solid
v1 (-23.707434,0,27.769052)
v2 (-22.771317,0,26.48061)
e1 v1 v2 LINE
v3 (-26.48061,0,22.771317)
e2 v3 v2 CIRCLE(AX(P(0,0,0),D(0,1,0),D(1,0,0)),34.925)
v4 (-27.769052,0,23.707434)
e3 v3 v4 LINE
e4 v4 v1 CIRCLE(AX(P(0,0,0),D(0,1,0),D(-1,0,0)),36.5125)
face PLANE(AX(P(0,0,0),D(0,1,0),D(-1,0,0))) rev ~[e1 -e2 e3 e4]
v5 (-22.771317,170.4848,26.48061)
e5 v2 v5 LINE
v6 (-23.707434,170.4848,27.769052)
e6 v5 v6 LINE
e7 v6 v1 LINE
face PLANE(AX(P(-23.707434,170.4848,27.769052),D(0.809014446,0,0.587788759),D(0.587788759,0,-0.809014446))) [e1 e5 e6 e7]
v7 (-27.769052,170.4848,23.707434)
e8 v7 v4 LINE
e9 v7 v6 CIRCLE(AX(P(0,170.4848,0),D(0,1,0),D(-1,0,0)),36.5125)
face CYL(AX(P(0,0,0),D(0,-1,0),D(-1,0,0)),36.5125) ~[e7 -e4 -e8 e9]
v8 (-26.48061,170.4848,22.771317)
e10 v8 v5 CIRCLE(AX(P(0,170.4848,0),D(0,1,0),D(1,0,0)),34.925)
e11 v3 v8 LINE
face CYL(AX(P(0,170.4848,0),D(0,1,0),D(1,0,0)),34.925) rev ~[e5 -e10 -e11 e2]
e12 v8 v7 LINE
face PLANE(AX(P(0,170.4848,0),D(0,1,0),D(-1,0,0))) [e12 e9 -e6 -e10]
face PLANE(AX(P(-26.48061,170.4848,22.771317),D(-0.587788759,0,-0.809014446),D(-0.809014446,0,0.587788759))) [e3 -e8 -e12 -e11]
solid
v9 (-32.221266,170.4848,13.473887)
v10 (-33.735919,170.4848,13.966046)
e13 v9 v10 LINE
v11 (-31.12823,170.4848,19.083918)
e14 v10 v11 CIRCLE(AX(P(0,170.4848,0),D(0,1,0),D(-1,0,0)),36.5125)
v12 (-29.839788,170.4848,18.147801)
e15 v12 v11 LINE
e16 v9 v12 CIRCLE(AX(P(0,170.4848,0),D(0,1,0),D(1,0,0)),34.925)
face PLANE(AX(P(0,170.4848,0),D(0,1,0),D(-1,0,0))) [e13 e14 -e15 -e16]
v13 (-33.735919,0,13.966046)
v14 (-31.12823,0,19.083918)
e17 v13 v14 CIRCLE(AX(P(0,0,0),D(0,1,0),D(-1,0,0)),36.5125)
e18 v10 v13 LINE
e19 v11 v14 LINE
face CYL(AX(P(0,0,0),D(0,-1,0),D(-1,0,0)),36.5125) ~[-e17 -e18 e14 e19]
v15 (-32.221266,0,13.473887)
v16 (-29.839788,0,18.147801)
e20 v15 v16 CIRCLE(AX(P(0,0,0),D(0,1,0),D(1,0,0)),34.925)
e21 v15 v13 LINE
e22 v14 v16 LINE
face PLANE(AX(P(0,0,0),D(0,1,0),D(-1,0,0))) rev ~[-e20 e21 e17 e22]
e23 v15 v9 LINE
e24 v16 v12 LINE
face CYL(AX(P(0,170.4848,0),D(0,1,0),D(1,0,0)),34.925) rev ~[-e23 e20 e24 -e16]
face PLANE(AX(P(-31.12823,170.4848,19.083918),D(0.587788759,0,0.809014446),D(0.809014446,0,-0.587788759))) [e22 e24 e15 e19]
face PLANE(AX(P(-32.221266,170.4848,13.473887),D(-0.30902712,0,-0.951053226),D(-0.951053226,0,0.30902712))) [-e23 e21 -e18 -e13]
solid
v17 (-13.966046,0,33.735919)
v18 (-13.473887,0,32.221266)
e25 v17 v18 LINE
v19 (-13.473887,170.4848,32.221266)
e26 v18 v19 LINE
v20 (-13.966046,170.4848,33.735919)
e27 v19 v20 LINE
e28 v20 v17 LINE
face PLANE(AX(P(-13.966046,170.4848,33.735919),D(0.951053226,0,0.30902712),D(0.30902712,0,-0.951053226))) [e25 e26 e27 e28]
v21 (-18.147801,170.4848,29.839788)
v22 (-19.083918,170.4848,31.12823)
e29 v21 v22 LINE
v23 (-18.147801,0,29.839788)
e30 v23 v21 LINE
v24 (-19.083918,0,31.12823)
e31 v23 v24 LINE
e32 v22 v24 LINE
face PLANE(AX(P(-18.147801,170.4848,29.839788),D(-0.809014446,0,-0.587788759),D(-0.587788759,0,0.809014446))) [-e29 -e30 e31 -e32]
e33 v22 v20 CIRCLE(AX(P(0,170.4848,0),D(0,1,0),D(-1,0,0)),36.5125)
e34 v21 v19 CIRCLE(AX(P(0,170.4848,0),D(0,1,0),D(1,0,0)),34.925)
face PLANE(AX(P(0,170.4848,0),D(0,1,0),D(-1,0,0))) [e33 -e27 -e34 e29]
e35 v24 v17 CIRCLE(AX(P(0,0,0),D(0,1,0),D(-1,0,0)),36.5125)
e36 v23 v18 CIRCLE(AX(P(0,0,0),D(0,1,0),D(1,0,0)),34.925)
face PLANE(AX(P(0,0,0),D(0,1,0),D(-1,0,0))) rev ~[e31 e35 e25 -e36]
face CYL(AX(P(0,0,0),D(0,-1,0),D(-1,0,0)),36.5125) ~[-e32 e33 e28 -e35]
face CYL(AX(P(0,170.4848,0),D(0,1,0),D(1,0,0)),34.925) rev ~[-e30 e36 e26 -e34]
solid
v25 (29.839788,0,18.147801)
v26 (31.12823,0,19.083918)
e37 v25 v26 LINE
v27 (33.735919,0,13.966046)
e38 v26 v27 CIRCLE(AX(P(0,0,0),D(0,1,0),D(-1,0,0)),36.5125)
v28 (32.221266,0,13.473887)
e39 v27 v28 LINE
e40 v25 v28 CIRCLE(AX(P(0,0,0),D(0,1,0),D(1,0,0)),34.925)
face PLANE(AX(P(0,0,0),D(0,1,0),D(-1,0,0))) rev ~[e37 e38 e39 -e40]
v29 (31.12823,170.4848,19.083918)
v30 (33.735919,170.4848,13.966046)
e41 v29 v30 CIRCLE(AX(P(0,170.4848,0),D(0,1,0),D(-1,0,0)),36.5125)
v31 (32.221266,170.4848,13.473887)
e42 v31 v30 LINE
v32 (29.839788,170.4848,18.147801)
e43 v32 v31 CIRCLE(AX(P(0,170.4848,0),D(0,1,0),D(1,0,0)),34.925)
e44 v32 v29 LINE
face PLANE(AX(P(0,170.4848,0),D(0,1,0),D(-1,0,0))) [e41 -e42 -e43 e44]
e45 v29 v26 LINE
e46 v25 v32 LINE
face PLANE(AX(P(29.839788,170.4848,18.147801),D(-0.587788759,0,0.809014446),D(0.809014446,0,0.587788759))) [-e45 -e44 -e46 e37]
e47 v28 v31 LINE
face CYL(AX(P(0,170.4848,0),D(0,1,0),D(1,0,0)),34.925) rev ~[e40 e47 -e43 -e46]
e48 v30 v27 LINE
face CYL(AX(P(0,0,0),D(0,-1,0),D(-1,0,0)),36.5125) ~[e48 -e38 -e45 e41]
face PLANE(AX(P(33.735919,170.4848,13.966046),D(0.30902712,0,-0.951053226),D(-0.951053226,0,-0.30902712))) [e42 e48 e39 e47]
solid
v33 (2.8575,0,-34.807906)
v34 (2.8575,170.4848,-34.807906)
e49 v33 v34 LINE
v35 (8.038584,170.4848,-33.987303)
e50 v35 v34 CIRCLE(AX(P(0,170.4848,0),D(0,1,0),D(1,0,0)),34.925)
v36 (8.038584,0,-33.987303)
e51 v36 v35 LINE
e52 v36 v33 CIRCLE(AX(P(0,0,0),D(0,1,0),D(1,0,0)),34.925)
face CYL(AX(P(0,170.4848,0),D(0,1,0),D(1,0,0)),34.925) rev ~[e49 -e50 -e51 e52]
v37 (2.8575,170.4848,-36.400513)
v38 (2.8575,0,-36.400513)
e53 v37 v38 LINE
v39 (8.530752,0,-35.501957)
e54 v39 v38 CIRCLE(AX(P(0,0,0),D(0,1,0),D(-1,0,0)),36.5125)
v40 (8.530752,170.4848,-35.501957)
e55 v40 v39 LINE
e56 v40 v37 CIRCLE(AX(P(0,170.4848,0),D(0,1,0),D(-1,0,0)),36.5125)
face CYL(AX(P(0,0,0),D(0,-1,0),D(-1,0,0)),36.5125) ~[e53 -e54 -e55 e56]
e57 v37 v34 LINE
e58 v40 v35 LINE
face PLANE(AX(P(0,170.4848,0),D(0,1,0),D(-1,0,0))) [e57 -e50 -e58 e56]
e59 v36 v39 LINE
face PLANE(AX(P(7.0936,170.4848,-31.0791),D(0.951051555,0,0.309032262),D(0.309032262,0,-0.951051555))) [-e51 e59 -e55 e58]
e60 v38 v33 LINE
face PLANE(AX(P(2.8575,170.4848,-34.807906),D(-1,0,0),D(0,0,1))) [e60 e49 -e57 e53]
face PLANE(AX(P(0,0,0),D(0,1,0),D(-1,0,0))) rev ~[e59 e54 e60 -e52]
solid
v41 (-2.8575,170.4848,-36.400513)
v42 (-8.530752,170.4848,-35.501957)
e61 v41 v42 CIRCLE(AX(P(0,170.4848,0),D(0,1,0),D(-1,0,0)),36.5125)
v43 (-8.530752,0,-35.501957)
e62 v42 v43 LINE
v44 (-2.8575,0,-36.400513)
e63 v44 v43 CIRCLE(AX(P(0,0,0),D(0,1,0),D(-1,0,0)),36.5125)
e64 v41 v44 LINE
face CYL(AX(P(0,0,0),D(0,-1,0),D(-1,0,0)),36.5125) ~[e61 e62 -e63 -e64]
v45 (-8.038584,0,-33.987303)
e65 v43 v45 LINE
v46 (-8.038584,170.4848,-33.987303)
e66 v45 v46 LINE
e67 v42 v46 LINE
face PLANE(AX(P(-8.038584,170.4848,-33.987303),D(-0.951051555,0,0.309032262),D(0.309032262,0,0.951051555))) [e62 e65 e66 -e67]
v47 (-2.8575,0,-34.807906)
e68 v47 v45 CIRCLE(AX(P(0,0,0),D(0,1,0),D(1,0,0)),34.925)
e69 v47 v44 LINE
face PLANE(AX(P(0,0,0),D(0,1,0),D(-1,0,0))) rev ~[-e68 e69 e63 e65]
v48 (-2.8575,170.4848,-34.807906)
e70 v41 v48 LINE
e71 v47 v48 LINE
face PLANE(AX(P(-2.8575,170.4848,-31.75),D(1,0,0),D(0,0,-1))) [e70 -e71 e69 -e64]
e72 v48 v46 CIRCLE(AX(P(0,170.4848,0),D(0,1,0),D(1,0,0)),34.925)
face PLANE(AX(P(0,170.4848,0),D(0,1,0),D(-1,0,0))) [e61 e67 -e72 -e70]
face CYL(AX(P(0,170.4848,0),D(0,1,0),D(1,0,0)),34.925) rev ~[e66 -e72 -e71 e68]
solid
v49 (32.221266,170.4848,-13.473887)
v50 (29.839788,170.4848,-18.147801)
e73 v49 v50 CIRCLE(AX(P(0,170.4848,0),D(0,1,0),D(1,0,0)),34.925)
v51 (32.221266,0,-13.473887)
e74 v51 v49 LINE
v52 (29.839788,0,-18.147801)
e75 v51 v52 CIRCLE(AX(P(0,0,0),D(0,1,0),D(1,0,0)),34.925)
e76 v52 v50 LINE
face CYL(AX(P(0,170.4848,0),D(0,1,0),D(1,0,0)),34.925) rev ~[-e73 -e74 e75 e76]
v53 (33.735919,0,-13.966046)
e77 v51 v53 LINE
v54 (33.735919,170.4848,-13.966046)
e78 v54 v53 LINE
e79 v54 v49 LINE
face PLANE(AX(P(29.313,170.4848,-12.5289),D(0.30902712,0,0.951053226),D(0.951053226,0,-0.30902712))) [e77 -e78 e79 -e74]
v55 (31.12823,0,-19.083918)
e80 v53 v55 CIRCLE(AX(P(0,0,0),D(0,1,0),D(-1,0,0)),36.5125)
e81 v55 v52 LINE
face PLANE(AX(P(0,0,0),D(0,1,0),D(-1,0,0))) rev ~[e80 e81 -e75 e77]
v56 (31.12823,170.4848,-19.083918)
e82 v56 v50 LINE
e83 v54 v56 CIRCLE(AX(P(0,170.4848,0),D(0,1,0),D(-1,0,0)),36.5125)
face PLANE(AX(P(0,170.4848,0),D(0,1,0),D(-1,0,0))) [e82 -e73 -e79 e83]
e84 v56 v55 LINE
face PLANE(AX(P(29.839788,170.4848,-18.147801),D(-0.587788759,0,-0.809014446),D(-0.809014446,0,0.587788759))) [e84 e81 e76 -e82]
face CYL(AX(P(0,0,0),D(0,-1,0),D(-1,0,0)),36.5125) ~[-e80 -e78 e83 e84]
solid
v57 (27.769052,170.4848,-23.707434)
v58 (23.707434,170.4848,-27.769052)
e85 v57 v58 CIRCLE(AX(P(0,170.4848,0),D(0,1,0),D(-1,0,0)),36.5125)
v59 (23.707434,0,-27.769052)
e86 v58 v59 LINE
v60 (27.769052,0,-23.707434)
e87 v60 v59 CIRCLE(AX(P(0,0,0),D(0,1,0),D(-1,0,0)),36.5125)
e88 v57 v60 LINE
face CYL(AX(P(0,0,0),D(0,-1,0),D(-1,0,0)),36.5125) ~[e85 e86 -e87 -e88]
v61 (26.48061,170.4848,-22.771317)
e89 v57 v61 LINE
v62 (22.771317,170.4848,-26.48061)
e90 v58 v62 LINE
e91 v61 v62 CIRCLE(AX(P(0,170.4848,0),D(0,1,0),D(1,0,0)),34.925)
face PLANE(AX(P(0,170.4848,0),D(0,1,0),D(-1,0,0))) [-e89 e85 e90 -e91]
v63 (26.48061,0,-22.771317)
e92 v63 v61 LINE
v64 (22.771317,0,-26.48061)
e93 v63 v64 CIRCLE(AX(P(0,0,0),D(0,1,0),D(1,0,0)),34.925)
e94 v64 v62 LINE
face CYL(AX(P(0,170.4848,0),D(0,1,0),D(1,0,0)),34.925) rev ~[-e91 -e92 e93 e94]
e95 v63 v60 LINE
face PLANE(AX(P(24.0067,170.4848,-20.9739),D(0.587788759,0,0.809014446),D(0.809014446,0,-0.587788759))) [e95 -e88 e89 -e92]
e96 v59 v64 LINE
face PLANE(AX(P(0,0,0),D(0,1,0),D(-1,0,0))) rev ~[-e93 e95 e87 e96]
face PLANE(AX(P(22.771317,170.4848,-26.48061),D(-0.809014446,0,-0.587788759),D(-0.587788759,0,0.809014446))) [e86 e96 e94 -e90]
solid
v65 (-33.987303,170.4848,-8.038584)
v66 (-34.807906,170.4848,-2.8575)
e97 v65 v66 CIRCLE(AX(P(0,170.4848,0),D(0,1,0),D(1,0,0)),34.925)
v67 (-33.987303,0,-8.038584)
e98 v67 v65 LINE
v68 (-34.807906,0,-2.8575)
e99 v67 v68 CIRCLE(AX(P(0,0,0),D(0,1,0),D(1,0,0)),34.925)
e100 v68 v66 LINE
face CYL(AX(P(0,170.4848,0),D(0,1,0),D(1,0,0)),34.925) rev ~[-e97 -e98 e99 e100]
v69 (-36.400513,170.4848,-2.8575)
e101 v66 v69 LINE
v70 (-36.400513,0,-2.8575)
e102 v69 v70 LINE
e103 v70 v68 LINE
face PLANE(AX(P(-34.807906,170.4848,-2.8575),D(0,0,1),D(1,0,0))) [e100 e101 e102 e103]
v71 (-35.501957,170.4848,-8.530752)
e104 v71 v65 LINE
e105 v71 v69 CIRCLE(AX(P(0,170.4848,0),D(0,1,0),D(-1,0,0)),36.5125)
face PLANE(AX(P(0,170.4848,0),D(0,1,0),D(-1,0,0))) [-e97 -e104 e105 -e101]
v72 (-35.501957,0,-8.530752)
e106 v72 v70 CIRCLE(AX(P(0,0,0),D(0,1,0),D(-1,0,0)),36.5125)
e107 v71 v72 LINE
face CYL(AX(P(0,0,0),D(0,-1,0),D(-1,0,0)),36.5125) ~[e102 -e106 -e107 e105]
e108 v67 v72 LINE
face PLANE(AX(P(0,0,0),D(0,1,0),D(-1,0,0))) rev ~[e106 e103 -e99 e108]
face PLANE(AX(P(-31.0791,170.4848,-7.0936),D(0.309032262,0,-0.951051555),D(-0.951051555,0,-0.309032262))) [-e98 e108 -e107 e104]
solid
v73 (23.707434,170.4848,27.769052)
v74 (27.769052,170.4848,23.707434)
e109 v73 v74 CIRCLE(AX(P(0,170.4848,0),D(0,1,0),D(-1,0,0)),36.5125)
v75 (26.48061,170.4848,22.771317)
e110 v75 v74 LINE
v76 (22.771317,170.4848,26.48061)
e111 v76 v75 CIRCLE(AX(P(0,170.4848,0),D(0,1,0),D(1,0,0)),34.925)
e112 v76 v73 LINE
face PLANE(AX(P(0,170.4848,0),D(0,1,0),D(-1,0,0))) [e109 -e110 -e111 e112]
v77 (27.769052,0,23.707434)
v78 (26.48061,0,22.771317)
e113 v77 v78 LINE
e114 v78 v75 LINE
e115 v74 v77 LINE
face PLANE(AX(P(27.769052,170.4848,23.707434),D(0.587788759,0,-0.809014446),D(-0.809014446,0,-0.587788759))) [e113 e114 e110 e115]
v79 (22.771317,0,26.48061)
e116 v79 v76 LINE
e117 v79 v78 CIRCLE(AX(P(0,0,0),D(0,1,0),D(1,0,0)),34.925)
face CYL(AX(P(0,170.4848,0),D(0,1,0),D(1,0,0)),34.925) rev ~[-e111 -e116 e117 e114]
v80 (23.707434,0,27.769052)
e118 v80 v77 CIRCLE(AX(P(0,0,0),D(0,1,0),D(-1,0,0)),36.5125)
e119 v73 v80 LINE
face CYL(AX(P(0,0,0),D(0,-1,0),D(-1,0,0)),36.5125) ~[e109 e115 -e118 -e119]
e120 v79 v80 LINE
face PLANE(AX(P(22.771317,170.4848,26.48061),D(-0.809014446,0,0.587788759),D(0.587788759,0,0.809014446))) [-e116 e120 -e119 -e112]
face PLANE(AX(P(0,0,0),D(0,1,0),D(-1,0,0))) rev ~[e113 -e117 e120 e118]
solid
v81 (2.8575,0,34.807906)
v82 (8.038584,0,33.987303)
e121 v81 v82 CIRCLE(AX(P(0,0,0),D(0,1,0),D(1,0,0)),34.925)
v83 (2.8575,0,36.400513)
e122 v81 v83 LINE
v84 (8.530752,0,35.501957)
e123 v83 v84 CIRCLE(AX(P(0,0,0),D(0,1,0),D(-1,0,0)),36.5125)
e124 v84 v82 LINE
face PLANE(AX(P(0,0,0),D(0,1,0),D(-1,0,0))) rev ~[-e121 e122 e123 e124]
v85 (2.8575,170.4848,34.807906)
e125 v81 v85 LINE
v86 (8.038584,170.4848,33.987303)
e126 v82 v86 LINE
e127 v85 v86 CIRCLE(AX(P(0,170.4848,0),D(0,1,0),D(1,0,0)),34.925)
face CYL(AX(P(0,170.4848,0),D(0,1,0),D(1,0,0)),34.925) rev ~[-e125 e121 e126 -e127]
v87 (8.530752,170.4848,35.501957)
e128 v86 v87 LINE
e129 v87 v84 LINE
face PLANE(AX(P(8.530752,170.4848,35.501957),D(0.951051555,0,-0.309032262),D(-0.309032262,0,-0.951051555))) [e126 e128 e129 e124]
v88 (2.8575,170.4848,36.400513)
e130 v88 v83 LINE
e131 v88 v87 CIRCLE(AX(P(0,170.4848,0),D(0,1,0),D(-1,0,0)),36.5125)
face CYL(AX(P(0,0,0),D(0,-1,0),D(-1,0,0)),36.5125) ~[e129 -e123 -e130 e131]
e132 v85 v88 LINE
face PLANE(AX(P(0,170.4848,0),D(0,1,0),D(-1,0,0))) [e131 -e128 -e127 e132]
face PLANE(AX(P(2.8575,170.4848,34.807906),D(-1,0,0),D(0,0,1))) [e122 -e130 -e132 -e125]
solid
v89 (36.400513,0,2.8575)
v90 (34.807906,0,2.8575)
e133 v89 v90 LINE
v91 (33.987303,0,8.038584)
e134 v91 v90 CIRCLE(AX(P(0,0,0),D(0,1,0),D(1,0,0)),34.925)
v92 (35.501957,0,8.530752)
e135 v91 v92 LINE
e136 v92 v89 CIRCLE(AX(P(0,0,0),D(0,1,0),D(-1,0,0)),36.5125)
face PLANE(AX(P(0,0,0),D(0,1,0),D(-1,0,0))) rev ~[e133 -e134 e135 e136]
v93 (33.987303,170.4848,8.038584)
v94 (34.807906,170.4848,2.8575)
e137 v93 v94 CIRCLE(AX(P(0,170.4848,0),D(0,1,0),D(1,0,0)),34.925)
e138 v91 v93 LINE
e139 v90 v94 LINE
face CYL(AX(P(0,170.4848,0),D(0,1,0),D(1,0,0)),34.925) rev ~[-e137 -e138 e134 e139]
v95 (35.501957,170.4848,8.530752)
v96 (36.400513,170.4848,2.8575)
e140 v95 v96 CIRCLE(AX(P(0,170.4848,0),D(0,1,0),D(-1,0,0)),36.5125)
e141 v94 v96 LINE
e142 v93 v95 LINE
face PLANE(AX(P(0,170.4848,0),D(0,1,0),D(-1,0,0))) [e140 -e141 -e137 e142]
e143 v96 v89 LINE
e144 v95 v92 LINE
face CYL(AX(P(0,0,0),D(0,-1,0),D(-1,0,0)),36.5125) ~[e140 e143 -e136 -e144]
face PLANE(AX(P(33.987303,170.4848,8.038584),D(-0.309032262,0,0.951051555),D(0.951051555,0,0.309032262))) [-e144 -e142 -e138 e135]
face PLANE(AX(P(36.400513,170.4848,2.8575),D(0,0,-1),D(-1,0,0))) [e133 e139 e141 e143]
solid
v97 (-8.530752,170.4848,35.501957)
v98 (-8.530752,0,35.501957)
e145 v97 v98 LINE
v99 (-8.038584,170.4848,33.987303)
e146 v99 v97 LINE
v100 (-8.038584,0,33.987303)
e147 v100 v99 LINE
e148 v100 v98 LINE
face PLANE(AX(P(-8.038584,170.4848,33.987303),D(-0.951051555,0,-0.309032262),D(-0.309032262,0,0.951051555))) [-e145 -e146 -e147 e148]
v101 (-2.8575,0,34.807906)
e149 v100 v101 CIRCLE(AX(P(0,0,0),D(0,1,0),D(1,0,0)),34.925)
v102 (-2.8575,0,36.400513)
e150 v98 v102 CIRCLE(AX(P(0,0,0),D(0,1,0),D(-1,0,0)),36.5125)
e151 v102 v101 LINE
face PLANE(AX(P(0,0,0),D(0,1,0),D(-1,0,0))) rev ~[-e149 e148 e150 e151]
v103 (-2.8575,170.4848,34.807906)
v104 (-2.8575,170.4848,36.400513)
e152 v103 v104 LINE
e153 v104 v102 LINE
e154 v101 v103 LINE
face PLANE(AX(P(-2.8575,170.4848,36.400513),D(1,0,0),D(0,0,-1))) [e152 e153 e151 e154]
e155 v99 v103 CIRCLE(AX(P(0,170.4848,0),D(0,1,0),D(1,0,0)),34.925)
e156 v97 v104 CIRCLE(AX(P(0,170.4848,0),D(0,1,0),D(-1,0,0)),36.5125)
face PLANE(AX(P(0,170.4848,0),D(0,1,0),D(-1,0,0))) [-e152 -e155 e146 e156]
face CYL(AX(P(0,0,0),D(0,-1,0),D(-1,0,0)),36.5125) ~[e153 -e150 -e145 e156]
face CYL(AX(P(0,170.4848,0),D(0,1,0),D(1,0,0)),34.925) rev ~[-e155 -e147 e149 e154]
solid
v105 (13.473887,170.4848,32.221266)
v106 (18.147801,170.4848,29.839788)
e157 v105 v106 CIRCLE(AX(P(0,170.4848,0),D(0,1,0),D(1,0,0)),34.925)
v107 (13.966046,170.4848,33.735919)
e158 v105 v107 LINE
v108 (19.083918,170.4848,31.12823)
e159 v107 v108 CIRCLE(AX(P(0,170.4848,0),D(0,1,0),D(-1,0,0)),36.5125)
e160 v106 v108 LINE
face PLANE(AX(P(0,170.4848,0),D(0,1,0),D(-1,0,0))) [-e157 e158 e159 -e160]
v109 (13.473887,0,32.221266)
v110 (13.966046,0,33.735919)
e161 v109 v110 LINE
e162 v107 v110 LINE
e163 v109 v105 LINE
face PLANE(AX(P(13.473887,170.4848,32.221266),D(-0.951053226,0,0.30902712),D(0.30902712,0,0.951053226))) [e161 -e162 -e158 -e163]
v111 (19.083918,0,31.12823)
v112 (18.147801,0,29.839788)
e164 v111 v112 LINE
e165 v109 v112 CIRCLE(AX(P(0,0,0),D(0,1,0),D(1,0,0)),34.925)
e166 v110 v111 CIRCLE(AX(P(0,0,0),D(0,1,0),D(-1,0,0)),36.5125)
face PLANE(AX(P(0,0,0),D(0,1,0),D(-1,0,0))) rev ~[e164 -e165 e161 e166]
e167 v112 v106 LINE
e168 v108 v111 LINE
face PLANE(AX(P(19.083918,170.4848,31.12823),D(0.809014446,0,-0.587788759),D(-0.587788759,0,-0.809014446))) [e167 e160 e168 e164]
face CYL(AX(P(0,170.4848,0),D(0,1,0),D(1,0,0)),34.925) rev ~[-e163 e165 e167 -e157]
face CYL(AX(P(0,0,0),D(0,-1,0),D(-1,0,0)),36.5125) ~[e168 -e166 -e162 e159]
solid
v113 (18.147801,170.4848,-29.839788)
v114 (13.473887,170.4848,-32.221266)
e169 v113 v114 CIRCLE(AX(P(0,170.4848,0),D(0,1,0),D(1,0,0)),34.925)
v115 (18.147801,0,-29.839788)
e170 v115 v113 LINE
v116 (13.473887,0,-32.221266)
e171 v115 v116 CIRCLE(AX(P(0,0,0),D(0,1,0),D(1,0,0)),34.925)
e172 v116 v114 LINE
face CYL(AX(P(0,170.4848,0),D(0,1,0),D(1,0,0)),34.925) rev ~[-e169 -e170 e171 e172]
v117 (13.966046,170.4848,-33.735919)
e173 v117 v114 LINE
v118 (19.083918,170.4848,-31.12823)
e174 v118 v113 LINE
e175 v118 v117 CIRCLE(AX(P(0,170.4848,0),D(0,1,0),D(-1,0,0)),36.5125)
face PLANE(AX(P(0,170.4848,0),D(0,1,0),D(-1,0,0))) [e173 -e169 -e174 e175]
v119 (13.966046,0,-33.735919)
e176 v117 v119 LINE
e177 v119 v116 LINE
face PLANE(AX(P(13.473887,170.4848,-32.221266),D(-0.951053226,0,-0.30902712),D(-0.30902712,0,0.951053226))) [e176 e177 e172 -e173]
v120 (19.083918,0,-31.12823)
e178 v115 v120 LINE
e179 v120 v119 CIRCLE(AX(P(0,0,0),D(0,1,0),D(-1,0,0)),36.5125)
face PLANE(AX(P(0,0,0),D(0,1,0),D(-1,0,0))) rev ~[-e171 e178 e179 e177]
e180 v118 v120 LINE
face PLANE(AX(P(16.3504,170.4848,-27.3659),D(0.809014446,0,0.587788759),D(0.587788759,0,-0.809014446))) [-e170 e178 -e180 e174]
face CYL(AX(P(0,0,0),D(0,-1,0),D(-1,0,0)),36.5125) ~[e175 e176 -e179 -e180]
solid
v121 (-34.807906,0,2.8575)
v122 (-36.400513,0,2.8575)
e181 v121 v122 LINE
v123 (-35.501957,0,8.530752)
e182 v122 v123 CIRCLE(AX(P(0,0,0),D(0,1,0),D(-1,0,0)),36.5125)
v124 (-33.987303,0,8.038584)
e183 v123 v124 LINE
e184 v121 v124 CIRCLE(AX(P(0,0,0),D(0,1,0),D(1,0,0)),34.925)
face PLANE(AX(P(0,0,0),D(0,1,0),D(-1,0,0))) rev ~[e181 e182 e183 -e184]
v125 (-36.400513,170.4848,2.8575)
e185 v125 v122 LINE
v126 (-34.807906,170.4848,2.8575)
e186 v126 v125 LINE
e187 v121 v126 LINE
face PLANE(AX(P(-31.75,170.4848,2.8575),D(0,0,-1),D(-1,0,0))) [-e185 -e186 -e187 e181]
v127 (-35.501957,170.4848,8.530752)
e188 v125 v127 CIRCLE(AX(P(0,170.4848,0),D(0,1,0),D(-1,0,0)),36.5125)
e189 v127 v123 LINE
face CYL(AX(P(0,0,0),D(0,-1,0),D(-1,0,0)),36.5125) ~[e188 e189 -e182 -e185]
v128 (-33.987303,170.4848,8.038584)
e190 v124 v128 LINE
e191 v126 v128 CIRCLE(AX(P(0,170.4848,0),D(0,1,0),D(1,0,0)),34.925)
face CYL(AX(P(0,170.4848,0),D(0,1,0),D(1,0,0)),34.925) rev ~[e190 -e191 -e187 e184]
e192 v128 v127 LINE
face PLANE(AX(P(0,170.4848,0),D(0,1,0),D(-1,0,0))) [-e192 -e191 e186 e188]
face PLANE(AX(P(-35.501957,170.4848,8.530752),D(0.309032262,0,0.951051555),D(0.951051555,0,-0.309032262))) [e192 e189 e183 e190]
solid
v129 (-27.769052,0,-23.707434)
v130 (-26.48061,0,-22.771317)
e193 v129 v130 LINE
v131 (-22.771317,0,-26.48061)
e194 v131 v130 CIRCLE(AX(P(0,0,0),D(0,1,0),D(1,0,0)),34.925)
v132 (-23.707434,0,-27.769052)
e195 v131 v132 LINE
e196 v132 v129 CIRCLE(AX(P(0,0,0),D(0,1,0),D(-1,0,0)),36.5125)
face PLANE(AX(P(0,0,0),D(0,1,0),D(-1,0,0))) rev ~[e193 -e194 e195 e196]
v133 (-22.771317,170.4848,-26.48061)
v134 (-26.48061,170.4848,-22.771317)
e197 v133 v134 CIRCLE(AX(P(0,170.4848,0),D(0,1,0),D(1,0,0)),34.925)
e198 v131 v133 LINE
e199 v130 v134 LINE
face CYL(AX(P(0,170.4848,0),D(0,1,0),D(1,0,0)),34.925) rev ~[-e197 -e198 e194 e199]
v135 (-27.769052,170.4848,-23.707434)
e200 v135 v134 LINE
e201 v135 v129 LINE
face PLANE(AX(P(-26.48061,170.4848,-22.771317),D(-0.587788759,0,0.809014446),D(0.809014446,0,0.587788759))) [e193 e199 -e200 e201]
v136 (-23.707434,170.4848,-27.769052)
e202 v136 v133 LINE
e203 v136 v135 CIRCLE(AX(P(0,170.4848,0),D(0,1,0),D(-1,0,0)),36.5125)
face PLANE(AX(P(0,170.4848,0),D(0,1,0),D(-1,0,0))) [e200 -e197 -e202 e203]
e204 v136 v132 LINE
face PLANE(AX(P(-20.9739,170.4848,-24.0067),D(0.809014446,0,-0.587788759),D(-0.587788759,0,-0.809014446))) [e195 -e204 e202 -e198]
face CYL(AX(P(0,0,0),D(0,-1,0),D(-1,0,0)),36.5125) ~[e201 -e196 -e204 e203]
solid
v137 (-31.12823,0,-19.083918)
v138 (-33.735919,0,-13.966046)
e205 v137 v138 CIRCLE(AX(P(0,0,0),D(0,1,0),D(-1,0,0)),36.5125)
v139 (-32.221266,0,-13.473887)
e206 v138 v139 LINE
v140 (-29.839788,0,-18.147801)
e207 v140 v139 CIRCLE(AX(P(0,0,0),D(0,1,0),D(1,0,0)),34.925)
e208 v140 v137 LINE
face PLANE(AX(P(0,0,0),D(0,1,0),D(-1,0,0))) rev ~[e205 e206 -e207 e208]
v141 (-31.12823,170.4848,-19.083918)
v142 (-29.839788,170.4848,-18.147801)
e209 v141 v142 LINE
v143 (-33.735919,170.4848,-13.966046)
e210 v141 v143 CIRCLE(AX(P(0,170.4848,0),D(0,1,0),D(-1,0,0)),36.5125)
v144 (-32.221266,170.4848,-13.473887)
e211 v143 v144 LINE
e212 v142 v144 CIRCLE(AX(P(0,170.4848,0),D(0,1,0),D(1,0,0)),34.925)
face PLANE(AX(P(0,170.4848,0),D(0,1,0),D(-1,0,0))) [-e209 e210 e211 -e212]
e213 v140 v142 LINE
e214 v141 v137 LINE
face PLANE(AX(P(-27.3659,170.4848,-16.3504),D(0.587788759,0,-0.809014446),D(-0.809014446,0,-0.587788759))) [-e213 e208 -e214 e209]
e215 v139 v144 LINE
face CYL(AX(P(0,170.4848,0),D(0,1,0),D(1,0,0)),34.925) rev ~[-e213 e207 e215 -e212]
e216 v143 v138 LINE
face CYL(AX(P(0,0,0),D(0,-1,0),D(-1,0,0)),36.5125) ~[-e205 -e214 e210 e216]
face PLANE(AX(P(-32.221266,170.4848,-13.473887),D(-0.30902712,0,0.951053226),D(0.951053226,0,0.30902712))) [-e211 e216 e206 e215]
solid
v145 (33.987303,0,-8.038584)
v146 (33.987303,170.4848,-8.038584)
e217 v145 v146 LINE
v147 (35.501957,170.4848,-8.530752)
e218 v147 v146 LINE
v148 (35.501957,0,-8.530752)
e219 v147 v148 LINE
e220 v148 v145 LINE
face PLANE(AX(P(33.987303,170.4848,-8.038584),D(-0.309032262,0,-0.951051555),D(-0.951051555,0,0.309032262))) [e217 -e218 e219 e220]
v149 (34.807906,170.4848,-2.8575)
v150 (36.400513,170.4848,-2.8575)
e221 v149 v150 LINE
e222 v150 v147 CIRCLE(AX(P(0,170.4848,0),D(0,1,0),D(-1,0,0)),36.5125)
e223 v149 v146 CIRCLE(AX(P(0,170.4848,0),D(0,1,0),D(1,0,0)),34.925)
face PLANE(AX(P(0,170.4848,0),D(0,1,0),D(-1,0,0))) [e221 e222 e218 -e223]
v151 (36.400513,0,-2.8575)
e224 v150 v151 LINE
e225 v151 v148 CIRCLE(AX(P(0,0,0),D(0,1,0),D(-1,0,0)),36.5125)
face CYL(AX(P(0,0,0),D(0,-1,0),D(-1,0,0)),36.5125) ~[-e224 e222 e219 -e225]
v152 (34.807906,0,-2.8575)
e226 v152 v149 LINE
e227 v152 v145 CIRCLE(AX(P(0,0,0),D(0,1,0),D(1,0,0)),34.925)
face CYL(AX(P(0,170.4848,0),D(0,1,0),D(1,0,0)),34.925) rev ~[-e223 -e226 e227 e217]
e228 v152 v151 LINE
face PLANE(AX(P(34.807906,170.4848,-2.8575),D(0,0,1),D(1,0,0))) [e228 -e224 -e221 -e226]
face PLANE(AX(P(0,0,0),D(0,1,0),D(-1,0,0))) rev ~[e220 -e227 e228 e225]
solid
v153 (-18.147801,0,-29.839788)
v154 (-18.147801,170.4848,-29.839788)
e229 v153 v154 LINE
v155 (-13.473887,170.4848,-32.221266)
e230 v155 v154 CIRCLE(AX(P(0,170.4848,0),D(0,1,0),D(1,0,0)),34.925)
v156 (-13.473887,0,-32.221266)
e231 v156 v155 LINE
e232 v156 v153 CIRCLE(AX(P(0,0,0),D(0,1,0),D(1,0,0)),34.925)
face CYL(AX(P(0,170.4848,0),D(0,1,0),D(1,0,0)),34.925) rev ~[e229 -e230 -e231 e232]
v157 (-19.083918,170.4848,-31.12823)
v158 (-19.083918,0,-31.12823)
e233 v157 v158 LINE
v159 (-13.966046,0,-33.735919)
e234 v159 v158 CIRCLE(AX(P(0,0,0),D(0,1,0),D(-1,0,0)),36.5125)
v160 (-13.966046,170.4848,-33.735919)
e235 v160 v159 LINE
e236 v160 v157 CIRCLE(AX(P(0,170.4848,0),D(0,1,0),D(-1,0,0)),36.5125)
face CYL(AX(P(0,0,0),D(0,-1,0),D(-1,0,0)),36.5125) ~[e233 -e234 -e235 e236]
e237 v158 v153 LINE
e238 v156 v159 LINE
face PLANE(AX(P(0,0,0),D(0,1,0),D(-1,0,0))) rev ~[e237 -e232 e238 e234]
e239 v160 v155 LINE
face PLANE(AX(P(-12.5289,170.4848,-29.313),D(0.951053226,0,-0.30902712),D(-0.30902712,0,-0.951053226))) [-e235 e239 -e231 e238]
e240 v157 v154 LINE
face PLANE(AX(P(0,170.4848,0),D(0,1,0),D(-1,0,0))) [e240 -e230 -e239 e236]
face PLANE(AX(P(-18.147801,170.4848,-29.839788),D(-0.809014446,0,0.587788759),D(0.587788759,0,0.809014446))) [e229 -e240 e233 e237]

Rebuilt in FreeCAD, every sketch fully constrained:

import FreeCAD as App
import Part
import Sketcher

V = App.Vector
Q = App.Units.Quantity

doc = App.newDocument("Part")
body = doc.addObject("PartDesign::Body", "Body")
body.AllowCompound = True

# Sketch on XZ plane
sketch1 = doc.addObject("Sketcher::SketchObject", "Sketch")
body.addObject(sketch1)
sketch1.AttachmentSupport = (doc.XZ_Plane, [""])
sketch1.MapMode = "FlatFace"
sketch1.addGeometry(Part.Circle(V(0, 0, 0), V(0, 0, 1), 36.5125), False)
sketch1.addConstraint(Sketcher.Constraint("Coincident", 0, 3, -1, 1))
sketch1.addConstraint(Sketcher.Constraint("Diameter", 0, Q("2.875 in")))
pad1 = doc.addObject("PartDesign::Pad", "Pad")
body.addObject(pad1)
pad1.Profile = sketch1
pad1.Length = Q("6.712 in")
pad1.Reversed = True

# Sketch on XZ plane
sketch2 = doc.addObject("Sketcher::SketchObject", "Sketch001")
body.addObject(sketch2)
sketch2.AttachmentSupport = (doc.XZ_Plane, [""])
sketch2.MapMode = "FlatFace"
sketch2.AttachmentOffset = App.Placement(V(0, 0, -6.712 * 25.4), App.Rotation())
sketch2.addGeometry(Part.Circle(V(0, 0, 0), V(0, 0, 1), 34.925), False)
sketch2.addConstraint(Sketcher.Constraint("Coincident", 0, 3, -1, 1))
sketch2.addConstraint(Sketcher.Constraint("Diameter", 0, Q("2.75 in")))
pocket1 = doc.addObject("PartDesign::Pocket", "Pocket")
body.addObject(pocket1)
pocket1.Profile = sketch2
pocket1.Type = "ThroughAll"
pocket1.Reversed = True

# Sketch on XZ plane
sketch3 = doc.addObject("Sketcher::SketchObject", "Sketch002")
body.addObject(sketch3)
sketch3.AttachmentSupport = (doc.XZ_Plane, [""])
sketch3.MapMode = "FlatFace"
sketch3.AttachmentOffset = App.Placement(V(0, 0, -6.712 * 25.4), App.Rotation())
sketch3.addGeometry(Part.LineSegment(V(-31.75, 2.8575, 0), V(-31.75, -2.8575, 0)), False)
sketch3.addGeometry(Part.LineSegment(V(-31.75, -2.8575, 0), V(-37.465, -2.8575, 0)), False)
sketch3.addGeometry(Part.LineSegment(V(-37.465, -2.8575, 0), V(-37.465, 2.8575, 0)), False)
sketch3.addGeometry(Part.LineSegment(V(-37.465, 2.8575, 0), V(-31.75, 2.8575, 0)), False)
sketch3.addGeometry(Part.LineSegment(V(-29.313, 12.5289, 0), V(-31.0791, 7.0936, 0)), False)
sketch3.addGeometry(Part.LineSegment(V(-31.0791, 7.0936, 0), V(-36.5143, 8.8597, 0)), False)
sketch3.addGeometry(Part.LineSegment(V(-36.5143, 8.8597, 0), V(-34.7483, 14.295, 0)), False)
sketch3.addGeometry(Part.LineSegment(V(-34.7483, 14.295, 0), V(-29.313, 12.5289, 0)), False)
sketch3.addGeometry(Part.LineSegment(V(-29.313, -12.5289, 0), V(-34.7483, -14.295, 0)), False)
sketch3.addGeometry(Part.LineSegment(V(-34.7483, -14.295, 0), V(-36.5143, -8.8597, 0)), False)
sketch3.addGeometry(Part.LineSegment(V(-36.5143, -8.8597, 0), V(-31.0791, -7.0936, 0)), False)
sketch3.addGeometry(Part.LineSegment(V(-31.0791, -7.0936, 0), V(-29.313, -12.5289, 0)), False)
sketch3.addGeometry(Part.LineSegment(V(-24.0067, 20.9739, 0), V(-27.3659, 16.3504, 0)), False)
sketch3.addGeometry(Part.LineSegment(V(-27.3659, 16.3504, 0), V(-31.9894, 19.7096, 0)), False)
sketch3.addGeometry(Part.LineSegment(V(-31.9894, 19.7096, 0), V(-28.6302, 24.3331, 0)), False)
sketch3.addGeometry(Part.LineSegment(V(-28.6302, 24.3331, 0), V(-24.0067, 20.9739, 0)), False)
sketch3.addGeometry(Part.LineSegment(V(-24.0067, -20.9739, 0), V(-28.6302, -24.3331, 0)), False)
sketch3.addGeometry(Part.LineSegment(V(-28.6302, -24.3331, 0), V(-31.9894, -19.7096, 0)), False)
sketch3.addGeometry(Part.LineSegment(V(-31.9894, -19.7096, 0), V(-27.3659, -16.3504, 0)), False)
sketch3.addGeometry(Part.LineSegment(V(-27.3659, -16.3504, 0), V(-24.0067, -20.9739, 0)), False)
sketch3.addGeometry(Part.LineSegment(V(-16.3504, 27.3659, 0), V(-20.9739, 24.0067, 0)), False)
sketch3.addGeometry(Part.LineSegment(V(-20.9739, 24.0067, 0), V(-24.3331, 28.6302, 0)), False)
sketch3.addGeometry(Part.LineSegment(V(-24.3331, 28.6302, 0), V(-19.7096, 31.9894, 0)), False)
sketch3.addGeometry(Part.LineSegment(V(-19.7096, 31.9894, 0), V(-16.3504, 27.3659, 0)), False)
sketch3.addGeometry(Part.LineSegment(V(-16.3504, -27.3659, 0), V(-19.7096, -31.9894, 0)), False)
sketch3.addGeometry(Part.LineSegment(V(-19.7096, -31.9894, 0), V(-24.3331, -28.6302, 0)), False)
sketch3.addGeometry(Part.LineSegment(V(-24.3331, -28.6302, 0), V(-20.9739, -24.0067, 0)), False)
sketch3.addGeometry(Part.LineSegment(V(-20.9739, -24.0067, 0), V(-16.3504, -27.3659, 0)), False)
sketch3.addGeometry(Part.LineSegment(V(-7.0936, 31.0791, 0), V(-12.5289, 29.313, 0)), False)
sketch3.addGeometry(Part.LineSegment(V(-12.5289, 29.313, 0), V(-14.295, 34.7483, 0)), False)
sketch3.addGeometry(Part.LineSegment(V(-14.295, 34.7483, 0), V(-8.8597, 36.5143, 0)), False)
sketch3.addGeometry(Part.LineSegment(V(-8.8597, 36.5143, 0), V(-7.0936, 31.0791, 0)), False)
sketch3.addGeometry(Part.LineSegment(V(-7.0936, -31.0791, 0), V(-8.8597, -36.5143, 0)), False)
sketch3.addGeometry(Part.LineSegment(V(-8.8597, -36.5143, 0), V(-14.295, -34.7483, 0)), False)
sketch3.addGeometry(Part.LineSegment(V(-14.295, -34.7483, 0), V(-12.5289, -29.313, 0)), False)
sketch3.addGeometry(Part.LineSegment(V(-12.5289, -29.313, 0), V(-7.0936, -31.0791, 0)), False)
sketch3.addGeometry(Part.LineSegment(V(2.8575, 31.75, 0), V(-2.8575, 31.75, 0)), False)
sketch3.addGeometry(Part.LineSegment(V(-2.8575, 31.75, 0), V(-2.8575, 37.465, 0)), False)
sketch3.addGeometry(Part.LineSegment(V(-2.8575, 37.465, 0), V(2.8575, 37.465, 0)), False)
sketch3.addGeometry(Part.LineSegment(V(2.8575, 37.465, 0), V(2.8575, 31.75, 0)), False)
sketch3.addGeometry(Part.LineSegment(V(2.8575, -31.75, 0), V(2.8575, -37.465, 0)), False)
sketch3.addGeometry(Part.LineSegment(V(2.8575, -37.465, 0), V(-2.8575, -37.465, 0)), False)
sketch3.addGeometry(Part.LineSegment(V(-2.8575, -37.465, 0), V(-2.8575, -31.75, 0)), False)
sketch3.addGeometry(Part.LineSegment(V(-2.8575, -31.75, 0), V(2.8575, -31.75, 0)), False)
sketch3.addGeometry(Part.LineSegment(V(12.5289, 29.313, 0), V(7.0936, 31.0791, 0)), False)
sketch3.addGeometry(Part.LineSegment(V(7.0936, 31.0791, 0), V(8.8597, 36.5143, 0)), False)
sketch3.addGeometry(Part.LineSegment(V(8.8597, 36.5143, 0), V(14.295, 34.7483, 0)), False)
sketch3.addGeometry(Part.LineSegment(V(14.295, 34.7483, 0), V(12.5289, 29.313, 0)), False)
sketch3.addGeometry(Part.LineSegment(V(12.5289, -29.313, 0), V(14.295, -34.7483, 0)), False)
sketch3.addGeometry(Part.LineSegment(V(14.295, -34.7483, 0), V(8.8597, -36.5143, 0)), False)
sketch3.addGeometry(Part.LineSegment(V(8.8597, -36.5143, 0), V(7.0936, -31.0791, 0)), False)
sketch3.addGeometry(Part.LineSegment(V(7.0936, -31.0791, 0), V(12.5289, -29.313, 0)), False)
sketch3.addGeometry(Part.LineSegment(V(20.9739, 24.0067, 0), V(16.3504, 27.3659, 0)), False)
sketch3.addGeometry(Part.LineSegment(V(16.3504, 27.3659, 0), V(19.7096, 31.9894, 0)), False)
sketch3.addGeometry(Part.LineSegment(V(19.7096, 31.9894, 0), V(24.3331, 28.6302, 0)), False)
sketch3.addGeometry(Part.LineSegment(V(24.3331, 28.6302, 0), V(20.9739, 24.0067, 0)), False)
sketch3.addGeometry(Part.LineSegment(V(20.9739, -24.0067, 0), V(24.3331, -28.6302, 0)), False)
sketch3.addGeometry(Part.LineSegment(V(24.3331, -28.6302, 0), V(19.7096, -31.9894, 0)), False)
sketch3.addGeometry(Part.LineSegment(V(19.7096, -31.9894, 0), V(16.3504, -27.3659, 0)), False)
sketch3.addGeometry(Part.LineSegment(V(16.3504, -27.3659, 0), V(20.9739, -24.0067, 0)), False)
sketch3.addGeometry(Part.LineSegment(V(27.3659, 16.3504, 0), V(24.0067, 20.9739, 0)), False)
sketch3.addGeometry(Part.LineSegment(V(24.0067, 20.9739, 0), V(28.6302, 24.3331, 0)), False)
sketch3.addGeometry(Part.LineSegment(V(28.6302, 24.3331, 0), V(31.9894, 19.7096, 0)), False)
sketch3.addGeometry(Part.LineSegment(V(31.9894, 19.7096, 0), V(27.3659, 16.3504, 0)), False)
sketch3.addGeometry(Part.LineSegment(V(27.3659, -16.3504, 0), V(31.9894, -19.7096, 0)), False)
sketch3.addGeometry(Part.LineSegment(V(31.9894, -19.7096, 0), V(28.6302, -24.3331, 0)), False)
sketch3.addGeometry(Part.LineSegment(V(28.6302, -24.3331, 0), V(24.0067, -20.9739, 0)), False)
sketch3.addGeometry(Part.LineSegment(V(24.0067, -20.9739, 0), V(27.3659, -16.3504, 0)), False)
sketch3.addGeometry(Part.LineSegment(V(31.0791, 7.0936, 0), V(29.313, 12.5289, 0)), False)
sketch3.addGeometry(Part.LineSegment(V(29.313, 12.5289, 0), V(34.7483, 14.295, 0)), False)
sketch3.addGeometry(Part.LineSegment(V(34.7483, 14.295, 0), V(36.5143, 8.8597, 0)), False)
sketch3.addGeometry(Part.LineSegment(V(36.5143, 8.8597, 0), V(31.0791, 7.0936, 0)), False)
sketch3.addGeometry(Part.LineSegment(V(31.0791, -7.0936, 0), V(36.5143, -8.8597, 0)), False)
sketch3.addGeometry(Part.LineSegment(V(36.5143, -8.8597, 0), V(34.7483, -14.295, 0)), False)
sketch3.addGeometry(Part.LineSegment(V(34.7483, -14.295, 0), V(29.313, -12.5289, 0)), False)
sketch3.addGeometry(Part.LineSegment(V(29.313, -12.5289, 0), V(31.0791, -7.0936, 0)), False)
sketch3.addGeometry(Part.LineSegment(V(31.75, -2.8575, 0), V(31.75, 2.8575, 0)), False)
sketch3.addGeometry(Part.LineSegment(V(31.75, 2.8575, 0), V(37.465, 2.8575, 0)), False)
sketch3.addGeometry(Part.LineSegment(V(37.465, 2.8575, 0), V(37.465, -2.8575, 0)), False)
sketch3.addGeometry(Part.LineSegment(V(37.465, -2.8575, 0), V(31.75, -2.8575, 0)), False)
sketch3.addConstraint(Sketcher.Constraint("Coincident", 0, 2, 1, 1))
sketch3.addConstraint(Sketcher.Constraint("Coincident", 1, 2, 2, 1))
sketch3.addConstraint(Sketcher.Constraint("Coincident", 2, 2, 3, 1))
sketch3.addConstraint(Sketcher.Constraint("Coincident", 3, 2, 0, 1))
sketch3.addConstraint(Sketcher.Constraint("Coincident", 4, 2, 5, 1))
sketch3.addConstraint(Sketcher.Constraint("Coincident", 5, 2, 6, 1))
sketch3.addConstraint(Sketcher.Constraint("Coincident", 6, 2, 7, 1))
sketch3.addConstraint(Sketcher.Constraint("Coincident", 7, 2, 4, 1))
sketch3.addConstraint(Sketcher.Constraint("Coincident", 8, 2, 9, 1))
sketch3.addConstraint(Sketcher.Constraint("Coincident", 9, 2, 10, 1))
sketch3.addConstraint(Sketcher.Constraint("Coincident", 10, 2, 11, 1))
sketch3.addConstraint(Sketcher.Constraint("Coincident", 11, 2, 8, 1))
sketch3.addConstraint(Sketcher.Constraint("Coincident", 12, 2, 13, 1))
sketch3.addConstraint(Sketcher.Constraint("Coincident", 13, 2, 14, 1))
sketch3.addConstraint(Sketcher.Constraint("Coincident", 14, 2, 15, 1))
sketch3.addConstraint(Sketcher.Constraint("Coincident", 15, 2, 12, 1))
sketch3.addConstraint(Sketcher.Constraint("Coincident", 16, 2, 17, 1))
sketch3.addConstraint(Sketcher.Constraint("Coincident", 17, 2, 18, 1))
sketch3.addConstraint(Sketcher.Constraint("Coincident", 18, 2, 19, 1))
sketch3.addConstraint(Sketcher.Constraint("Coincident", 19, 2, 16, 1))
sketch3.addConstraint(Sketcher.Constraint("Coincident", 20, 2, 21, 1))
sketch3.addConstraint(Sketcher.Constraint("Coincident", 21, 2, 22, 1))
sketch3.addConstraint(Sketcher.Constraint("Coincident", 22, 2, 23, 1))
sketch3.addConstraint(Sketcher.Constraint("Coincident", 23, 2, 20, 1))
sketch3.addConstraint(Sketcher.Constraint("Coincident", 24, 2, 25, 1))
sketch3.addConstraint(Sketcher.Constraint("Coincident", 25, 2, 26, 1))
sketch3.addConstraint(Sketcher.Constraint("Coincident", 26, 2, 27, 1))
sketch3.addConstraint(Sketcher.Constraint("Coincident", 27, 2, 24, 1))
sketch3.addConstraint(Sketcher.Constraint("Coincident", 28, 2, 29, 1))
sketch3.addConstraint(Sketcher.Constraint("Coincident", 29, 2, 30, 1))
sketch3.addConstraint(Sketcher.Constraint("Coincident", 30, 2, 31, 1))
sketch3.addConstraint(Sketcher.Constraint("Coincident", 31, 2, 28, 1))
sketch3.addConstraint(Sketcher.Constraint("Coincident", 32, 2, 33, 1))
sketch3.addConstraint(Sketcher.Constraint("Coincident", 33, 2, 34, 1))
sketch3.addConstraint(Sketcher.Constraint("Coincident", 34, 2, 35, 1))
sketch3.addConstraint(Sketcher.Constraint("Coincident", 35, 2, 32, 1))
sketch3.addConstraint(Sketcher.Constraint("Coincident", 36, 2, 37, 1))
sketch3.addConstraint(Sketcher.Constraint("Coincident", 37, 2, 38, 1))
sketch3.addConstraint(Sketcher.Constraint("Coincident", 38, 2, 39, 1))
sketch3.addConstraint(Sketcher.Constraint("Coincident", 39, 2, 36, 1))
sketch3.addConstraint(Sketcher.Constraint("Coincident", 40, 2, 41, 1))
sketch3.addConstraint(Sketcher.Constraint("Coincident", 41, 2, 42, 1))
sketch3.addConstraint(Sketcher.Constraint("Coincident", 42, 2, 43, 1))
sketch3.addConstraint(Sketcher.Constraint("Coincident", 43, 2, 40, 1))
sketch3.addConstraint(Sketcher.Constraint("Coincident", 44, 2, 45, 1))
sketch3.addConstraint(Sketcher.Constraint("Coincident", 45, 2, 46, 1))
sketch3.addConstraint(Sketcher.Constraint("Coincident", 46, 2, 47, 1))
sketch3.addConstraint(Sketcher.Constraint("Coincident", 47, 2, 44, 1))
sketch3.addConstraint(Sketcher.Constraint("Coincident", 48, 2, 49, 1))
sketch3.addConstraint(Sketcher.Constraint("Coincident", 49, 2, 50, 1))
sketch3.addConstraint(Sketcher.Constraint("Coincident", 50, 2, 51, 1))
sketch3.addConstraint(Sketcher.Constraint("Coincident", 51, 2, 48, 1))
sketch3.addConstraint(Sketcher.Constraint("Coincident", 52, 2, 53, 1))
sketch3.addConstraint(Sketcher.Constraint("Coincident", 53, 2, 54, 1))
sketch3.addConstraint(Sketcher.Constraint("Coincident", 54, 2, 55, 1))
sketch3.addConstraint(Sketcher.Constraint("Coincident", 55, 2, 52, 1))
sketch3.addConstraint(Sketcher.Constraint("Coincident", 56, 2, 57, 1))
sketch3.addConstraint(Sketcher.Constraint("Coincident", 57, 2, 58, 1))
sketch3.addConstraint(Sketcher.Constraint("Coincident", 58, 2, 59, 1))
sketch3.addConstraint(Sketcher.Constraint("Coincident", 59, 2, 56, 1))
sketch3.addConstraint(Sketcher.Constraint("Coincident", 60, 2, 61, 1))
sketch3.addConstraint(Sketcher.Constraint("Coincident", 61, 2, 62, 1))
sketch3.addConstraint(Sketcher.Constraint("Coincident", 62, 2, 63, 1))
sketch3.addConstraint(Sketcher.Constraint("Coincident", 63, 2, 60, 1))
sketch3.addConstraint(Sketcher.Constraint("Coincident", 64, 2, 65, 1))
sketch3.addConstraint(Sketcher.Constraint("Coincident", 65, 2, 66, 1))
sketch3.addConstraint(Sketcher.Constraint("Coincident", 66, 2, 67, 1))
sketch3.addConstraint(Sketcher.Constraint("Coincident", 67, 2, 64, 1))
sketch3.addConstraint(Sketcher.Constraint("Coincident", 68, 2, 69, 1))
sketch3.addConstraint(Sketcher.Constraint("Coincident", 69, 2, 70, 1))
sketch3.addConstraint(Sketcher.Constraint("Coincident", 70, 2, 71, 1))
sketch3.addConstraint(Sketcher.Constraint("Coincident", 71, 2, 68, 1))
sketch3.addConstraint(Sketcher.Constraint("Coincident", 72, 2, 73, 1))
sketch3.addConstraint(Sketcher.Constraint("Coincident", 73, 2, 74, 1))
sketch3.addConstraint(Sketcher.Constraint("Coincident", 74, 2, 75, 1))
sketch3.addConstraint(Sketcher.Constraint("Coincident", 75, 2, 72, 1))
sketch3.addConstraint(Sketcher.Constraint("Coincident", 76, 2, 77, 1))
sketch3.addConstraint(Sketcher.Constraint("Coincident", 77, 2, 78, 1))
sketch3.addConstraint(Sketcher.Constraint("Coincident", 78, 2, 79, 1))
sketch3.addConstraint(Sketcher.Constraint("Coincident", 79, 2, 76, 1))
sketch3.addConstraint(Sketcher.Constraint("Vertical", 0))
sketch3.addConstraint(Sketcher.Constraint("Horizontal", 1))
sketch3.addConstraint(Sketcher.Constraint("Vertical", 2))
sketch3.addConstraint(Sketcher.Constraint("Horizontal", 3))
sketch3.addConstraint(Sketcher.Constraint("Horizontal", 36))
sketch3.addConstraint(Sketcher.Constraint("Vertical", 37))
sketch3.addConstraint(Sketcher.Constraint("Horizontal", 38))
sketch3.addConstraint(Sketcher.Constraint("Vertical", 39))
sketch3.addConstraint(Sketcher.Constraint("Vertical", 40))
sketch3.addConstraint(Sketcher.Constraint("Horizontal", 41))
sketch3.addConstraint(Sketcher.Constraint("Vertical", 42))
sketch3.addConstraint(Sketcher.Constraint("Horizontal", 43))
sketch3.addConstraint(Sketcher.Constraint("Vertical", 76))
sketch3.addConstraint(Sketcher.Constraint("Horizontal", 77))
sketch3.addConstraint(Sketcher.Constraint("Vertical", 78))
sketch3.addConstraint(Sketcher.Constraint("Horizontal", 79))
sketch3.addConstraint(Sketcher.Constraint("Symmetric", 37, 2, 40, 2, -1, 1))
sketch3.addConstraint(Sketcher.Constraint("Symmetric", 39, 2, 42, 2, -1, 1))
sketch3.addConstraint(Sketcher.Constraint("Symmetric", 35, 2, 44, 2, -1, 1))
sketch3.addConstraint(Sketcher.Constraint("Symmetric", 32, 2, 45, 2, -1, 1))
sketch3.addConstraint(Sketcher.Constraint("Symmetric", 33, 2, 46, 2, -1, 1))
sketch3.addConstraint(Sketcher.Constraint("Symmetric", 34, 2, 47, 2, -1, 1))
sketch3.addConstraint(Sketcher.Constraint("Symmetric", 29, 2, 48, 2, -1, 1))
sketch3.addConstraint(Sketcher.Constraint("Symmetric", 30, 2, 49, 2, -1, 1))
sketch3.addConstraint(Sketcher.Constraint("Symmetric", 31, 2, 50, 2, -1, 1))
sketch3.addConstraint(Sketcher.Constraint("Symmetric", 28, 2, 51, 2, -1, 1))
sketch3.addConstraint(Sketcher.Constraint("Symmetric", 27, 2, 52, 2, -1, 1))
sketch3.addConstraint(Sketcher.Constraint("Symmetric", 24, 2, 53, 2, -1, 1))
sketch3.addConstraint(Sketcher.Constraint("Symmetric", 25, 2, 54, 2, -1, 1))
sketch3.addConstraint(Sketcher.Constraint("Symmetric", 26, 2, 55, 2, -1, 1))
sketch3.addConstraint(Sketcher.Constraint("Symmetric", 21, 2, 56, 2, -1, 1))
sketch3.addConstraint(Sketcher.Constraint("Symmetric", 22, 2, 57, 2, -1, 1))
sketch3.addConstraint(Sketcher.Constraint("Symmetric", 23, 2, 58, 2, -1, 1))
sketch3.addConstraint(Sketcher.Constraint("Symmetric", 20, 2, 59, 2, -1, 1))
sketch3.addConstraint(Sketcher.Constraint("Symmetric", 19, 2, 60, 2, -1, 1))
sketch3.addConstraint(Sketcher.Constraint("Symmetric", 16, 2, 61, 2, -1, 1))
sketch3.addConstraint(Sketcher.Constraint("Symmetric", 17, 2, 62, 2, -1, 1))
sketch3.addConstraint(Sketcher.Constraint("Symmetric", 18, 2, 63, 2, -1, 1))
sketch3.addConstraint(Sketcher.Constraint("Symmetric", 13, 2, 64, 2, -1, 1))
sketch3.addConstraint(Sketcher.Constraint("Symmetric", 14, 2, 65, 2, -1, 1))
sketch3.addConstraint(Sketcher.Constraint("Symmetric", 15, 2, 66, 2, -1, 1))
sketch3.addConstraint(Sketcher.Constraint("Symmetric", 12, 2, 67, 2, -1, 1))
sketch3.addConstraint(Sketcher.Constraint("Symmetric", 11, 2, 68, 2, -1, 1))
sketch3.addConstraint(Sketcher.Constraint("Symmetric", 8, 2, 69, 2, -1, 1))
sketch3.addConstraint(Sketcher.Constraint("Symmetric", 9, 2, 70, 2, -1, 1))
sketch3.addConstraint(Sketcher.Constraint("Symmetric", 10, 2, 71, 2, -1, 1))
sketch3.addConstraint(Sketcher.Constraint("Symmetric", 5, 2, 72, 2, -1, 1))
sketch3.addConstraint(Sketcher.Constraint("Symmetric", 6, 2, 73, 2, -1, 1))
sketch3.addConstraint(Sketcher.Constraint("Symmetric", 7, 2, 74, 2, -1, 1))
sketch3.addConstraint(Sketcher.Constraint("Symmetric", 4, 2, 75, 2, -1, 1))
sketch3.addConstraint(Sketcher.Constraint("Symmetric", 0, 2, 76, 2, -1, 1))
sketch3.addConstraint(Sketcher.Constraint("Symmetric", 2, 2, 78, 2, -1, 1))
sketch3.addConstraint(Sketcher.Constraint("Symmetric", 31, 2, 44, 2, -2))
sketch3.addConstraint(Sketcher.Constraint("Symmetric", 30, 2, 45, 2, -2))
sketch3.addConstraint(Sketcher.Constraint("Symmetric", 29, 2, 46, 2, -2))
sketch3.addConstraint(Sketcher.Constraint("Symmetric", 28, 2, 47, 2, -2))
sketch3.addConstraint(Sketcher.Constraint("Symmetric", 23, 2, 52, 2, -2))
sketch3.addConstraint(Sketcher.Constraint("Symmetric", 22, 2, 53, 2, -2))
sketch3.addConstraint(Sketcher.Constraint("Symmetric", 21, 2, 54, 2, -2))
sketch3.addConstraint(Sketcher.Constraint("Symmetric", 20, 2, 55, 2, -2))
sketch3.addConstraint(Sketcher.Constraint("Symmetric", 15, 2, 60, 2, -2))
sketch3.addConstraint(Sketcher.Constraint("Symmetric", 14, 2, 61, 2, -2))
sketch3.addConstraint(Sketcher.Constraint("Symmetric", 13, 2, 62, 2, -2))
sketch3.addConstraint(Sketcher.Constraint("Symmetric", 12, 2, 63, 2, -2))
sketch3.addConstraint(Sketcher.Constraint("Symmetric", 7, 2, 68, 2, -2))
sketch3.addConstraint(Sketcher.Constraint("Symmetric", 6, 2, 69, 2, -2))
sketch3.addConstraint(Sketcher.Constraint("Symmetric", 5, 2, 70, 2, -2))
sketch3.addConstraint(Sketcher.Constraint("Symmetric", 4, 2, 71, 2, -2))
sketch3.addConstraint(Sketcher.Constraint("Perpendicular", 4, 5))
sketch3.addConstraint(Sketcher.Constraint("Perpendicular", 5, 6))
sketch3.addConstraint(Sketcher.Constraint("Perpendicular", 6, 7))
sketch3.addConstraint(Sketcher.Constraint("Perpendicular", 12, 13))
sketch3.addConstraint(Sketcher.Constraint("Perpendicular", 13, 14))
sketch3.addConstraint(Sketcher.Constraint("Perpendicular", 14, 15))
sketch3.addConstraint(Sketcher.Constraint("Perpendicular", 19, 20))
sketch3.addConstraint(Sketcher.Constraint("Perpendicular", 20, 21))
sketch3.addConstraint(Sketcher.Constraint("Perpendicular", 21, 22))
sketch3.addConstraint(Sketcher.Constraint("Perpendicular", 22, 23))
sketch3.addConstraint(Sketcher.Constraint("Perpendicular", 11, 28))
sketch3.addConstraint(Sketcher.Constraint("Perpendicular", 28, 29))
sketch3.addConstraint(Sketcher.Constraint("Perpendicular", 29, 30))
sketch3.addConstraint(Sketcher.Constraint("Perpendicular", 30, 31))
sketch3.addConstraint(Sketcher.Constraint("Horizontal", 3, 2, 76, 2))
sketch3.addConstraint(Sketcher.Constraint("Vertical", 39, 2, 40, 2))
sketch3.addConstraint(Sketcher.Constraint("Equal", 3, 36))
sketch3.addConstraint(Sketcher.Constraint("Equal", 79, 0))
sketch3.addConstraint(Sketcher.Constraint("Equal", 2, 37))
sketch3.addConstraint(Sketcher.Constraint("Equal", 4, 5))
sketch3.addConstraint(Sketcher.Constraint("Equal", 11, 12))
sketch3.addConstraint(Sketcher.Constraint("Equal", 12, 13))
sketch3.addConstraint(Sketcher.Constraint("Equal", 19, 20))
sketch3.addConstraint(Sketcher.Constraint("Equal", 20, 21))
sketch3.addConstraint(Sketcher.Constraint("Equal", 27, 28))
sketch3.addConstraint(Sketcher.Constraint("Equal", 28, 29))
sketch3.addConstraint(Sketcher.Constraint("DistanceX", 1, 2, 1, 1, Q("0.225 in")))
sketch3.addConstraint(Sketcher.Constraint("Distance", 4, Q("0.225 in")))
sketch3.addConstraint(Sketcher.Constraint("Angle", 4, Q("-108.0006 deg")))
sketch3.addConstraint(Sketcher.Constraint("Angle", 12, Q("-126.0002 deg")))
sketch3.addConstraint(Sketcher.Constraint("DistanceX", 0, 2, -1, 1, Q("1.25 in")))
sketch3.addConstraint(Sketcher.Constraint("DistanceY", -1, 1, 36, 2, Q("1.25 in")))
sketch3.addConstraint(Sketcher.Constraint("DistanceY", -1, 1, 14, 2, Q("0.958 in")))
sketch3.addConstraint(Sketcher.Constraint("DistanceX", 21, 2, -1, 1, Q("0.958 in")))
sketch3.addConstraint(Sketcher.Constraint("DistanceY", -1, 1, 5, 2, Q("0.3488 in")))
sketch3.addConstraint(Sketcher.Constraint("DistanceX", 12, 2, -1, 1, Q("1.0774 in")))
sketch3.addConstraint(Sketcher.Constraint("DistanceY", -1, 1, 23, 2, Q("1.0774 in")))
sketch3.addConstraint(Sketcher.Constraint("DistanceX", 29, 2, -1, 1, Q("0.5628 in")))
sketch3.addConstraint(Sketcher.Constraint("DistanceX", 4, 2, -1, 1, Q("31.079 mm")))
sketch3.addConstraint(Sketcher.Constraint("DistanceY", -1, 1, 28, 2, Q("29.313 mm")))
pocket2 = doc.addObject("PartDesign::Pocket", "Pocket001")
body.addObject(pocket2)
pocket2.Profile = sketch3
pocket2.Type = "ThroughAll"
pocket2.Reversed = True

doc.recompute()
